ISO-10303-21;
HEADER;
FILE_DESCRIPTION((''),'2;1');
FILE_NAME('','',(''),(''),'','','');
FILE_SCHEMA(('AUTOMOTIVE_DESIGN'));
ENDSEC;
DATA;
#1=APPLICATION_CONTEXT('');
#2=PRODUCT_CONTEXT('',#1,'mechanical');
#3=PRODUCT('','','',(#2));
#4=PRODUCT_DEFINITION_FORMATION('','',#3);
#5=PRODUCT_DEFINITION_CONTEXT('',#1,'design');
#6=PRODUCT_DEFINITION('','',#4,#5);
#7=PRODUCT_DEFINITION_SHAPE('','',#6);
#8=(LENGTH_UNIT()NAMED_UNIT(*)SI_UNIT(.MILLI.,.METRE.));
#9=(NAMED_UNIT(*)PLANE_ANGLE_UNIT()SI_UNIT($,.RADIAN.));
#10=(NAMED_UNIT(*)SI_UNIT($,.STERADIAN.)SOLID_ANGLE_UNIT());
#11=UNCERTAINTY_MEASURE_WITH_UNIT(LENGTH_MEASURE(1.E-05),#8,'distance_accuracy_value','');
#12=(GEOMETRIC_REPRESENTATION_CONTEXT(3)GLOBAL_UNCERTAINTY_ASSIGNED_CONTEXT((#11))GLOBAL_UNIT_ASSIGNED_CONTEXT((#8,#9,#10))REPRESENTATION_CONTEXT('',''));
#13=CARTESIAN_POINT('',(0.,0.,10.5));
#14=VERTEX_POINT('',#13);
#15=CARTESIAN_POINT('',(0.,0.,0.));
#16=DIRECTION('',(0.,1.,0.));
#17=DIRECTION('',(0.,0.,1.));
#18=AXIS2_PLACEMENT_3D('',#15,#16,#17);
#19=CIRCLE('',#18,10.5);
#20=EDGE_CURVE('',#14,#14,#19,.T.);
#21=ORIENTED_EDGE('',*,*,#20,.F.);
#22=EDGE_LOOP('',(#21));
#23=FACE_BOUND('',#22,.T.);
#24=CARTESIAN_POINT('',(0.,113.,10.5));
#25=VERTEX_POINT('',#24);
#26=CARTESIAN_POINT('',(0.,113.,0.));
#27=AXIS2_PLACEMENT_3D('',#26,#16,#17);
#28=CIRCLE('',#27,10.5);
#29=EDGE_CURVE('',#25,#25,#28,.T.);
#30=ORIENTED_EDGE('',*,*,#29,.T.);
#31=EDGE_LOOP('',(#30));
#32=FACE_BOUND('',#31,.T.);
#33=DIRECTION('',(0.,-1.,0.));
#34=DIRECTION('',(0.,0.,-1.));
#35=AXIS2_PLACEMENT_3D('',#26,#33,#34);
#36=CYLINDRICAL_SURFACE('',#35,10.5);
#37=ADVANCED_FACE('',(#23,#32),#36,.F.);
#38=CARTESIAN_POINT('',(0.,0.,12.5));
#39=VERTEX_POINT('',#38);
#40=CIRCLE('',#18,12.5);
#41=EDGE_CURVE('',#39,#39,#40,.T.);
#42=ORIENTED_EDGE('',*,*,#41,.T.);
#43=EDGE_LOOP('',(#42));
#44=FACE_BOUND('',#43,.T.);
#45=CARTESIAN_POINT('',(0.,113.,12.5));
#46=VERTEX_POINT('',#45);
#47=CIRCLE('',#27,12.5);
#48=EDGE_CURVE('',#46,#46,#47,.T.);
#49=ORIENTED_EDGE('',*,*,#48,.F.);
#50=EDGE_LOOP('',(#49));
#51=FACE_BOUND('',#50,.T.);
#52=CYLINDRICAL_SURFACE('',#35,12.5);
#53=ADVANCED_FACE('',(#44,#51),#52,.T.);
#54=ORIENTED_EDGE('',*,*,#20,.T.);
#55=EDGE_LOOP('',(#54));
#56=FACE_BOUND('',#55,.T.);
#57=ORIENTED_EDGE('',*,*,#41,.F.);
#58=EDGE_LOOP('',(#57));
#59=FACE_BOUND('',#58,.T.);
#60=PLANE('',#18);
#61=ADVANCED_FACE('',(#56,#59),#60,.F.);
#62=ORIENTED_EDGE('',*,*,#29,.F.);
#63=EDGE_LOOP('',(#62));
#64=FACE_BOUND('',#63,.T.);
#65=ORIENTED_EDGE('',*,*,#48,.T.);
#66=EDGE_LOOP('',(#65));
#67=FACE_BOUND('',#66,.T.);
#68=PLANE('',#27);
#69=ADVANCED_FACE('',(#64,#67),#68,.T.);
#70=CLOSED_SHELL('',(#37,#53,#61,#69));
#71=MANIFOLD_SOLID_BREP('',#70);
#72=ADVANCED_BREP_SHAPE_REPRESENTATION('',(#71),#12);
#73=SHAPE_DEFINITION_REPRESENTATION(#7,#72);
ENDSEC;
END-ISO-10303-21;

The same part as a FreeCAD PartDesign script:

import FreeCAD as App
import Part
import Sketcher
Q = App.Units.Quantity

doc = App.newDocument("Part")
body = doc.addObject("PartDesign::Body", "Body")

sketch1 = body.newObject("Sketcher::SketchObject", "Sketch")
sketch1.AttachmentSupport = (doc.getObject("XZ_Plane"), [""])
sketch1.MapMode = "FlatFace"
sketch1.addGeometry([
    Part.Circle(App.Vector(0, 0, 0), App.Vector(0, 0, 1), 13),
    Part.Circle(App.Vector(0, 0, 0), App.Vector(0, 0, 1), 10),
], False)
sketch1.addConstraint([
    Sketcher.Constraint("Coincident", 0, 3, -1, 1),
    Sketcher.Constraint("Coincident", 1, 3, -1, 1),
    Sketcher.Constraint("Diameter", 0, Q("25 mm")),
    Sketcher.Constraint("Diameter", 1, Q("21 mm")),
])
pad1 = body.newObject("PartDesign::Pad", "Pad")
pad1.Profile = sketch1
pad1.Length = 113
pad1.Reversed = True

doc.recompute()
